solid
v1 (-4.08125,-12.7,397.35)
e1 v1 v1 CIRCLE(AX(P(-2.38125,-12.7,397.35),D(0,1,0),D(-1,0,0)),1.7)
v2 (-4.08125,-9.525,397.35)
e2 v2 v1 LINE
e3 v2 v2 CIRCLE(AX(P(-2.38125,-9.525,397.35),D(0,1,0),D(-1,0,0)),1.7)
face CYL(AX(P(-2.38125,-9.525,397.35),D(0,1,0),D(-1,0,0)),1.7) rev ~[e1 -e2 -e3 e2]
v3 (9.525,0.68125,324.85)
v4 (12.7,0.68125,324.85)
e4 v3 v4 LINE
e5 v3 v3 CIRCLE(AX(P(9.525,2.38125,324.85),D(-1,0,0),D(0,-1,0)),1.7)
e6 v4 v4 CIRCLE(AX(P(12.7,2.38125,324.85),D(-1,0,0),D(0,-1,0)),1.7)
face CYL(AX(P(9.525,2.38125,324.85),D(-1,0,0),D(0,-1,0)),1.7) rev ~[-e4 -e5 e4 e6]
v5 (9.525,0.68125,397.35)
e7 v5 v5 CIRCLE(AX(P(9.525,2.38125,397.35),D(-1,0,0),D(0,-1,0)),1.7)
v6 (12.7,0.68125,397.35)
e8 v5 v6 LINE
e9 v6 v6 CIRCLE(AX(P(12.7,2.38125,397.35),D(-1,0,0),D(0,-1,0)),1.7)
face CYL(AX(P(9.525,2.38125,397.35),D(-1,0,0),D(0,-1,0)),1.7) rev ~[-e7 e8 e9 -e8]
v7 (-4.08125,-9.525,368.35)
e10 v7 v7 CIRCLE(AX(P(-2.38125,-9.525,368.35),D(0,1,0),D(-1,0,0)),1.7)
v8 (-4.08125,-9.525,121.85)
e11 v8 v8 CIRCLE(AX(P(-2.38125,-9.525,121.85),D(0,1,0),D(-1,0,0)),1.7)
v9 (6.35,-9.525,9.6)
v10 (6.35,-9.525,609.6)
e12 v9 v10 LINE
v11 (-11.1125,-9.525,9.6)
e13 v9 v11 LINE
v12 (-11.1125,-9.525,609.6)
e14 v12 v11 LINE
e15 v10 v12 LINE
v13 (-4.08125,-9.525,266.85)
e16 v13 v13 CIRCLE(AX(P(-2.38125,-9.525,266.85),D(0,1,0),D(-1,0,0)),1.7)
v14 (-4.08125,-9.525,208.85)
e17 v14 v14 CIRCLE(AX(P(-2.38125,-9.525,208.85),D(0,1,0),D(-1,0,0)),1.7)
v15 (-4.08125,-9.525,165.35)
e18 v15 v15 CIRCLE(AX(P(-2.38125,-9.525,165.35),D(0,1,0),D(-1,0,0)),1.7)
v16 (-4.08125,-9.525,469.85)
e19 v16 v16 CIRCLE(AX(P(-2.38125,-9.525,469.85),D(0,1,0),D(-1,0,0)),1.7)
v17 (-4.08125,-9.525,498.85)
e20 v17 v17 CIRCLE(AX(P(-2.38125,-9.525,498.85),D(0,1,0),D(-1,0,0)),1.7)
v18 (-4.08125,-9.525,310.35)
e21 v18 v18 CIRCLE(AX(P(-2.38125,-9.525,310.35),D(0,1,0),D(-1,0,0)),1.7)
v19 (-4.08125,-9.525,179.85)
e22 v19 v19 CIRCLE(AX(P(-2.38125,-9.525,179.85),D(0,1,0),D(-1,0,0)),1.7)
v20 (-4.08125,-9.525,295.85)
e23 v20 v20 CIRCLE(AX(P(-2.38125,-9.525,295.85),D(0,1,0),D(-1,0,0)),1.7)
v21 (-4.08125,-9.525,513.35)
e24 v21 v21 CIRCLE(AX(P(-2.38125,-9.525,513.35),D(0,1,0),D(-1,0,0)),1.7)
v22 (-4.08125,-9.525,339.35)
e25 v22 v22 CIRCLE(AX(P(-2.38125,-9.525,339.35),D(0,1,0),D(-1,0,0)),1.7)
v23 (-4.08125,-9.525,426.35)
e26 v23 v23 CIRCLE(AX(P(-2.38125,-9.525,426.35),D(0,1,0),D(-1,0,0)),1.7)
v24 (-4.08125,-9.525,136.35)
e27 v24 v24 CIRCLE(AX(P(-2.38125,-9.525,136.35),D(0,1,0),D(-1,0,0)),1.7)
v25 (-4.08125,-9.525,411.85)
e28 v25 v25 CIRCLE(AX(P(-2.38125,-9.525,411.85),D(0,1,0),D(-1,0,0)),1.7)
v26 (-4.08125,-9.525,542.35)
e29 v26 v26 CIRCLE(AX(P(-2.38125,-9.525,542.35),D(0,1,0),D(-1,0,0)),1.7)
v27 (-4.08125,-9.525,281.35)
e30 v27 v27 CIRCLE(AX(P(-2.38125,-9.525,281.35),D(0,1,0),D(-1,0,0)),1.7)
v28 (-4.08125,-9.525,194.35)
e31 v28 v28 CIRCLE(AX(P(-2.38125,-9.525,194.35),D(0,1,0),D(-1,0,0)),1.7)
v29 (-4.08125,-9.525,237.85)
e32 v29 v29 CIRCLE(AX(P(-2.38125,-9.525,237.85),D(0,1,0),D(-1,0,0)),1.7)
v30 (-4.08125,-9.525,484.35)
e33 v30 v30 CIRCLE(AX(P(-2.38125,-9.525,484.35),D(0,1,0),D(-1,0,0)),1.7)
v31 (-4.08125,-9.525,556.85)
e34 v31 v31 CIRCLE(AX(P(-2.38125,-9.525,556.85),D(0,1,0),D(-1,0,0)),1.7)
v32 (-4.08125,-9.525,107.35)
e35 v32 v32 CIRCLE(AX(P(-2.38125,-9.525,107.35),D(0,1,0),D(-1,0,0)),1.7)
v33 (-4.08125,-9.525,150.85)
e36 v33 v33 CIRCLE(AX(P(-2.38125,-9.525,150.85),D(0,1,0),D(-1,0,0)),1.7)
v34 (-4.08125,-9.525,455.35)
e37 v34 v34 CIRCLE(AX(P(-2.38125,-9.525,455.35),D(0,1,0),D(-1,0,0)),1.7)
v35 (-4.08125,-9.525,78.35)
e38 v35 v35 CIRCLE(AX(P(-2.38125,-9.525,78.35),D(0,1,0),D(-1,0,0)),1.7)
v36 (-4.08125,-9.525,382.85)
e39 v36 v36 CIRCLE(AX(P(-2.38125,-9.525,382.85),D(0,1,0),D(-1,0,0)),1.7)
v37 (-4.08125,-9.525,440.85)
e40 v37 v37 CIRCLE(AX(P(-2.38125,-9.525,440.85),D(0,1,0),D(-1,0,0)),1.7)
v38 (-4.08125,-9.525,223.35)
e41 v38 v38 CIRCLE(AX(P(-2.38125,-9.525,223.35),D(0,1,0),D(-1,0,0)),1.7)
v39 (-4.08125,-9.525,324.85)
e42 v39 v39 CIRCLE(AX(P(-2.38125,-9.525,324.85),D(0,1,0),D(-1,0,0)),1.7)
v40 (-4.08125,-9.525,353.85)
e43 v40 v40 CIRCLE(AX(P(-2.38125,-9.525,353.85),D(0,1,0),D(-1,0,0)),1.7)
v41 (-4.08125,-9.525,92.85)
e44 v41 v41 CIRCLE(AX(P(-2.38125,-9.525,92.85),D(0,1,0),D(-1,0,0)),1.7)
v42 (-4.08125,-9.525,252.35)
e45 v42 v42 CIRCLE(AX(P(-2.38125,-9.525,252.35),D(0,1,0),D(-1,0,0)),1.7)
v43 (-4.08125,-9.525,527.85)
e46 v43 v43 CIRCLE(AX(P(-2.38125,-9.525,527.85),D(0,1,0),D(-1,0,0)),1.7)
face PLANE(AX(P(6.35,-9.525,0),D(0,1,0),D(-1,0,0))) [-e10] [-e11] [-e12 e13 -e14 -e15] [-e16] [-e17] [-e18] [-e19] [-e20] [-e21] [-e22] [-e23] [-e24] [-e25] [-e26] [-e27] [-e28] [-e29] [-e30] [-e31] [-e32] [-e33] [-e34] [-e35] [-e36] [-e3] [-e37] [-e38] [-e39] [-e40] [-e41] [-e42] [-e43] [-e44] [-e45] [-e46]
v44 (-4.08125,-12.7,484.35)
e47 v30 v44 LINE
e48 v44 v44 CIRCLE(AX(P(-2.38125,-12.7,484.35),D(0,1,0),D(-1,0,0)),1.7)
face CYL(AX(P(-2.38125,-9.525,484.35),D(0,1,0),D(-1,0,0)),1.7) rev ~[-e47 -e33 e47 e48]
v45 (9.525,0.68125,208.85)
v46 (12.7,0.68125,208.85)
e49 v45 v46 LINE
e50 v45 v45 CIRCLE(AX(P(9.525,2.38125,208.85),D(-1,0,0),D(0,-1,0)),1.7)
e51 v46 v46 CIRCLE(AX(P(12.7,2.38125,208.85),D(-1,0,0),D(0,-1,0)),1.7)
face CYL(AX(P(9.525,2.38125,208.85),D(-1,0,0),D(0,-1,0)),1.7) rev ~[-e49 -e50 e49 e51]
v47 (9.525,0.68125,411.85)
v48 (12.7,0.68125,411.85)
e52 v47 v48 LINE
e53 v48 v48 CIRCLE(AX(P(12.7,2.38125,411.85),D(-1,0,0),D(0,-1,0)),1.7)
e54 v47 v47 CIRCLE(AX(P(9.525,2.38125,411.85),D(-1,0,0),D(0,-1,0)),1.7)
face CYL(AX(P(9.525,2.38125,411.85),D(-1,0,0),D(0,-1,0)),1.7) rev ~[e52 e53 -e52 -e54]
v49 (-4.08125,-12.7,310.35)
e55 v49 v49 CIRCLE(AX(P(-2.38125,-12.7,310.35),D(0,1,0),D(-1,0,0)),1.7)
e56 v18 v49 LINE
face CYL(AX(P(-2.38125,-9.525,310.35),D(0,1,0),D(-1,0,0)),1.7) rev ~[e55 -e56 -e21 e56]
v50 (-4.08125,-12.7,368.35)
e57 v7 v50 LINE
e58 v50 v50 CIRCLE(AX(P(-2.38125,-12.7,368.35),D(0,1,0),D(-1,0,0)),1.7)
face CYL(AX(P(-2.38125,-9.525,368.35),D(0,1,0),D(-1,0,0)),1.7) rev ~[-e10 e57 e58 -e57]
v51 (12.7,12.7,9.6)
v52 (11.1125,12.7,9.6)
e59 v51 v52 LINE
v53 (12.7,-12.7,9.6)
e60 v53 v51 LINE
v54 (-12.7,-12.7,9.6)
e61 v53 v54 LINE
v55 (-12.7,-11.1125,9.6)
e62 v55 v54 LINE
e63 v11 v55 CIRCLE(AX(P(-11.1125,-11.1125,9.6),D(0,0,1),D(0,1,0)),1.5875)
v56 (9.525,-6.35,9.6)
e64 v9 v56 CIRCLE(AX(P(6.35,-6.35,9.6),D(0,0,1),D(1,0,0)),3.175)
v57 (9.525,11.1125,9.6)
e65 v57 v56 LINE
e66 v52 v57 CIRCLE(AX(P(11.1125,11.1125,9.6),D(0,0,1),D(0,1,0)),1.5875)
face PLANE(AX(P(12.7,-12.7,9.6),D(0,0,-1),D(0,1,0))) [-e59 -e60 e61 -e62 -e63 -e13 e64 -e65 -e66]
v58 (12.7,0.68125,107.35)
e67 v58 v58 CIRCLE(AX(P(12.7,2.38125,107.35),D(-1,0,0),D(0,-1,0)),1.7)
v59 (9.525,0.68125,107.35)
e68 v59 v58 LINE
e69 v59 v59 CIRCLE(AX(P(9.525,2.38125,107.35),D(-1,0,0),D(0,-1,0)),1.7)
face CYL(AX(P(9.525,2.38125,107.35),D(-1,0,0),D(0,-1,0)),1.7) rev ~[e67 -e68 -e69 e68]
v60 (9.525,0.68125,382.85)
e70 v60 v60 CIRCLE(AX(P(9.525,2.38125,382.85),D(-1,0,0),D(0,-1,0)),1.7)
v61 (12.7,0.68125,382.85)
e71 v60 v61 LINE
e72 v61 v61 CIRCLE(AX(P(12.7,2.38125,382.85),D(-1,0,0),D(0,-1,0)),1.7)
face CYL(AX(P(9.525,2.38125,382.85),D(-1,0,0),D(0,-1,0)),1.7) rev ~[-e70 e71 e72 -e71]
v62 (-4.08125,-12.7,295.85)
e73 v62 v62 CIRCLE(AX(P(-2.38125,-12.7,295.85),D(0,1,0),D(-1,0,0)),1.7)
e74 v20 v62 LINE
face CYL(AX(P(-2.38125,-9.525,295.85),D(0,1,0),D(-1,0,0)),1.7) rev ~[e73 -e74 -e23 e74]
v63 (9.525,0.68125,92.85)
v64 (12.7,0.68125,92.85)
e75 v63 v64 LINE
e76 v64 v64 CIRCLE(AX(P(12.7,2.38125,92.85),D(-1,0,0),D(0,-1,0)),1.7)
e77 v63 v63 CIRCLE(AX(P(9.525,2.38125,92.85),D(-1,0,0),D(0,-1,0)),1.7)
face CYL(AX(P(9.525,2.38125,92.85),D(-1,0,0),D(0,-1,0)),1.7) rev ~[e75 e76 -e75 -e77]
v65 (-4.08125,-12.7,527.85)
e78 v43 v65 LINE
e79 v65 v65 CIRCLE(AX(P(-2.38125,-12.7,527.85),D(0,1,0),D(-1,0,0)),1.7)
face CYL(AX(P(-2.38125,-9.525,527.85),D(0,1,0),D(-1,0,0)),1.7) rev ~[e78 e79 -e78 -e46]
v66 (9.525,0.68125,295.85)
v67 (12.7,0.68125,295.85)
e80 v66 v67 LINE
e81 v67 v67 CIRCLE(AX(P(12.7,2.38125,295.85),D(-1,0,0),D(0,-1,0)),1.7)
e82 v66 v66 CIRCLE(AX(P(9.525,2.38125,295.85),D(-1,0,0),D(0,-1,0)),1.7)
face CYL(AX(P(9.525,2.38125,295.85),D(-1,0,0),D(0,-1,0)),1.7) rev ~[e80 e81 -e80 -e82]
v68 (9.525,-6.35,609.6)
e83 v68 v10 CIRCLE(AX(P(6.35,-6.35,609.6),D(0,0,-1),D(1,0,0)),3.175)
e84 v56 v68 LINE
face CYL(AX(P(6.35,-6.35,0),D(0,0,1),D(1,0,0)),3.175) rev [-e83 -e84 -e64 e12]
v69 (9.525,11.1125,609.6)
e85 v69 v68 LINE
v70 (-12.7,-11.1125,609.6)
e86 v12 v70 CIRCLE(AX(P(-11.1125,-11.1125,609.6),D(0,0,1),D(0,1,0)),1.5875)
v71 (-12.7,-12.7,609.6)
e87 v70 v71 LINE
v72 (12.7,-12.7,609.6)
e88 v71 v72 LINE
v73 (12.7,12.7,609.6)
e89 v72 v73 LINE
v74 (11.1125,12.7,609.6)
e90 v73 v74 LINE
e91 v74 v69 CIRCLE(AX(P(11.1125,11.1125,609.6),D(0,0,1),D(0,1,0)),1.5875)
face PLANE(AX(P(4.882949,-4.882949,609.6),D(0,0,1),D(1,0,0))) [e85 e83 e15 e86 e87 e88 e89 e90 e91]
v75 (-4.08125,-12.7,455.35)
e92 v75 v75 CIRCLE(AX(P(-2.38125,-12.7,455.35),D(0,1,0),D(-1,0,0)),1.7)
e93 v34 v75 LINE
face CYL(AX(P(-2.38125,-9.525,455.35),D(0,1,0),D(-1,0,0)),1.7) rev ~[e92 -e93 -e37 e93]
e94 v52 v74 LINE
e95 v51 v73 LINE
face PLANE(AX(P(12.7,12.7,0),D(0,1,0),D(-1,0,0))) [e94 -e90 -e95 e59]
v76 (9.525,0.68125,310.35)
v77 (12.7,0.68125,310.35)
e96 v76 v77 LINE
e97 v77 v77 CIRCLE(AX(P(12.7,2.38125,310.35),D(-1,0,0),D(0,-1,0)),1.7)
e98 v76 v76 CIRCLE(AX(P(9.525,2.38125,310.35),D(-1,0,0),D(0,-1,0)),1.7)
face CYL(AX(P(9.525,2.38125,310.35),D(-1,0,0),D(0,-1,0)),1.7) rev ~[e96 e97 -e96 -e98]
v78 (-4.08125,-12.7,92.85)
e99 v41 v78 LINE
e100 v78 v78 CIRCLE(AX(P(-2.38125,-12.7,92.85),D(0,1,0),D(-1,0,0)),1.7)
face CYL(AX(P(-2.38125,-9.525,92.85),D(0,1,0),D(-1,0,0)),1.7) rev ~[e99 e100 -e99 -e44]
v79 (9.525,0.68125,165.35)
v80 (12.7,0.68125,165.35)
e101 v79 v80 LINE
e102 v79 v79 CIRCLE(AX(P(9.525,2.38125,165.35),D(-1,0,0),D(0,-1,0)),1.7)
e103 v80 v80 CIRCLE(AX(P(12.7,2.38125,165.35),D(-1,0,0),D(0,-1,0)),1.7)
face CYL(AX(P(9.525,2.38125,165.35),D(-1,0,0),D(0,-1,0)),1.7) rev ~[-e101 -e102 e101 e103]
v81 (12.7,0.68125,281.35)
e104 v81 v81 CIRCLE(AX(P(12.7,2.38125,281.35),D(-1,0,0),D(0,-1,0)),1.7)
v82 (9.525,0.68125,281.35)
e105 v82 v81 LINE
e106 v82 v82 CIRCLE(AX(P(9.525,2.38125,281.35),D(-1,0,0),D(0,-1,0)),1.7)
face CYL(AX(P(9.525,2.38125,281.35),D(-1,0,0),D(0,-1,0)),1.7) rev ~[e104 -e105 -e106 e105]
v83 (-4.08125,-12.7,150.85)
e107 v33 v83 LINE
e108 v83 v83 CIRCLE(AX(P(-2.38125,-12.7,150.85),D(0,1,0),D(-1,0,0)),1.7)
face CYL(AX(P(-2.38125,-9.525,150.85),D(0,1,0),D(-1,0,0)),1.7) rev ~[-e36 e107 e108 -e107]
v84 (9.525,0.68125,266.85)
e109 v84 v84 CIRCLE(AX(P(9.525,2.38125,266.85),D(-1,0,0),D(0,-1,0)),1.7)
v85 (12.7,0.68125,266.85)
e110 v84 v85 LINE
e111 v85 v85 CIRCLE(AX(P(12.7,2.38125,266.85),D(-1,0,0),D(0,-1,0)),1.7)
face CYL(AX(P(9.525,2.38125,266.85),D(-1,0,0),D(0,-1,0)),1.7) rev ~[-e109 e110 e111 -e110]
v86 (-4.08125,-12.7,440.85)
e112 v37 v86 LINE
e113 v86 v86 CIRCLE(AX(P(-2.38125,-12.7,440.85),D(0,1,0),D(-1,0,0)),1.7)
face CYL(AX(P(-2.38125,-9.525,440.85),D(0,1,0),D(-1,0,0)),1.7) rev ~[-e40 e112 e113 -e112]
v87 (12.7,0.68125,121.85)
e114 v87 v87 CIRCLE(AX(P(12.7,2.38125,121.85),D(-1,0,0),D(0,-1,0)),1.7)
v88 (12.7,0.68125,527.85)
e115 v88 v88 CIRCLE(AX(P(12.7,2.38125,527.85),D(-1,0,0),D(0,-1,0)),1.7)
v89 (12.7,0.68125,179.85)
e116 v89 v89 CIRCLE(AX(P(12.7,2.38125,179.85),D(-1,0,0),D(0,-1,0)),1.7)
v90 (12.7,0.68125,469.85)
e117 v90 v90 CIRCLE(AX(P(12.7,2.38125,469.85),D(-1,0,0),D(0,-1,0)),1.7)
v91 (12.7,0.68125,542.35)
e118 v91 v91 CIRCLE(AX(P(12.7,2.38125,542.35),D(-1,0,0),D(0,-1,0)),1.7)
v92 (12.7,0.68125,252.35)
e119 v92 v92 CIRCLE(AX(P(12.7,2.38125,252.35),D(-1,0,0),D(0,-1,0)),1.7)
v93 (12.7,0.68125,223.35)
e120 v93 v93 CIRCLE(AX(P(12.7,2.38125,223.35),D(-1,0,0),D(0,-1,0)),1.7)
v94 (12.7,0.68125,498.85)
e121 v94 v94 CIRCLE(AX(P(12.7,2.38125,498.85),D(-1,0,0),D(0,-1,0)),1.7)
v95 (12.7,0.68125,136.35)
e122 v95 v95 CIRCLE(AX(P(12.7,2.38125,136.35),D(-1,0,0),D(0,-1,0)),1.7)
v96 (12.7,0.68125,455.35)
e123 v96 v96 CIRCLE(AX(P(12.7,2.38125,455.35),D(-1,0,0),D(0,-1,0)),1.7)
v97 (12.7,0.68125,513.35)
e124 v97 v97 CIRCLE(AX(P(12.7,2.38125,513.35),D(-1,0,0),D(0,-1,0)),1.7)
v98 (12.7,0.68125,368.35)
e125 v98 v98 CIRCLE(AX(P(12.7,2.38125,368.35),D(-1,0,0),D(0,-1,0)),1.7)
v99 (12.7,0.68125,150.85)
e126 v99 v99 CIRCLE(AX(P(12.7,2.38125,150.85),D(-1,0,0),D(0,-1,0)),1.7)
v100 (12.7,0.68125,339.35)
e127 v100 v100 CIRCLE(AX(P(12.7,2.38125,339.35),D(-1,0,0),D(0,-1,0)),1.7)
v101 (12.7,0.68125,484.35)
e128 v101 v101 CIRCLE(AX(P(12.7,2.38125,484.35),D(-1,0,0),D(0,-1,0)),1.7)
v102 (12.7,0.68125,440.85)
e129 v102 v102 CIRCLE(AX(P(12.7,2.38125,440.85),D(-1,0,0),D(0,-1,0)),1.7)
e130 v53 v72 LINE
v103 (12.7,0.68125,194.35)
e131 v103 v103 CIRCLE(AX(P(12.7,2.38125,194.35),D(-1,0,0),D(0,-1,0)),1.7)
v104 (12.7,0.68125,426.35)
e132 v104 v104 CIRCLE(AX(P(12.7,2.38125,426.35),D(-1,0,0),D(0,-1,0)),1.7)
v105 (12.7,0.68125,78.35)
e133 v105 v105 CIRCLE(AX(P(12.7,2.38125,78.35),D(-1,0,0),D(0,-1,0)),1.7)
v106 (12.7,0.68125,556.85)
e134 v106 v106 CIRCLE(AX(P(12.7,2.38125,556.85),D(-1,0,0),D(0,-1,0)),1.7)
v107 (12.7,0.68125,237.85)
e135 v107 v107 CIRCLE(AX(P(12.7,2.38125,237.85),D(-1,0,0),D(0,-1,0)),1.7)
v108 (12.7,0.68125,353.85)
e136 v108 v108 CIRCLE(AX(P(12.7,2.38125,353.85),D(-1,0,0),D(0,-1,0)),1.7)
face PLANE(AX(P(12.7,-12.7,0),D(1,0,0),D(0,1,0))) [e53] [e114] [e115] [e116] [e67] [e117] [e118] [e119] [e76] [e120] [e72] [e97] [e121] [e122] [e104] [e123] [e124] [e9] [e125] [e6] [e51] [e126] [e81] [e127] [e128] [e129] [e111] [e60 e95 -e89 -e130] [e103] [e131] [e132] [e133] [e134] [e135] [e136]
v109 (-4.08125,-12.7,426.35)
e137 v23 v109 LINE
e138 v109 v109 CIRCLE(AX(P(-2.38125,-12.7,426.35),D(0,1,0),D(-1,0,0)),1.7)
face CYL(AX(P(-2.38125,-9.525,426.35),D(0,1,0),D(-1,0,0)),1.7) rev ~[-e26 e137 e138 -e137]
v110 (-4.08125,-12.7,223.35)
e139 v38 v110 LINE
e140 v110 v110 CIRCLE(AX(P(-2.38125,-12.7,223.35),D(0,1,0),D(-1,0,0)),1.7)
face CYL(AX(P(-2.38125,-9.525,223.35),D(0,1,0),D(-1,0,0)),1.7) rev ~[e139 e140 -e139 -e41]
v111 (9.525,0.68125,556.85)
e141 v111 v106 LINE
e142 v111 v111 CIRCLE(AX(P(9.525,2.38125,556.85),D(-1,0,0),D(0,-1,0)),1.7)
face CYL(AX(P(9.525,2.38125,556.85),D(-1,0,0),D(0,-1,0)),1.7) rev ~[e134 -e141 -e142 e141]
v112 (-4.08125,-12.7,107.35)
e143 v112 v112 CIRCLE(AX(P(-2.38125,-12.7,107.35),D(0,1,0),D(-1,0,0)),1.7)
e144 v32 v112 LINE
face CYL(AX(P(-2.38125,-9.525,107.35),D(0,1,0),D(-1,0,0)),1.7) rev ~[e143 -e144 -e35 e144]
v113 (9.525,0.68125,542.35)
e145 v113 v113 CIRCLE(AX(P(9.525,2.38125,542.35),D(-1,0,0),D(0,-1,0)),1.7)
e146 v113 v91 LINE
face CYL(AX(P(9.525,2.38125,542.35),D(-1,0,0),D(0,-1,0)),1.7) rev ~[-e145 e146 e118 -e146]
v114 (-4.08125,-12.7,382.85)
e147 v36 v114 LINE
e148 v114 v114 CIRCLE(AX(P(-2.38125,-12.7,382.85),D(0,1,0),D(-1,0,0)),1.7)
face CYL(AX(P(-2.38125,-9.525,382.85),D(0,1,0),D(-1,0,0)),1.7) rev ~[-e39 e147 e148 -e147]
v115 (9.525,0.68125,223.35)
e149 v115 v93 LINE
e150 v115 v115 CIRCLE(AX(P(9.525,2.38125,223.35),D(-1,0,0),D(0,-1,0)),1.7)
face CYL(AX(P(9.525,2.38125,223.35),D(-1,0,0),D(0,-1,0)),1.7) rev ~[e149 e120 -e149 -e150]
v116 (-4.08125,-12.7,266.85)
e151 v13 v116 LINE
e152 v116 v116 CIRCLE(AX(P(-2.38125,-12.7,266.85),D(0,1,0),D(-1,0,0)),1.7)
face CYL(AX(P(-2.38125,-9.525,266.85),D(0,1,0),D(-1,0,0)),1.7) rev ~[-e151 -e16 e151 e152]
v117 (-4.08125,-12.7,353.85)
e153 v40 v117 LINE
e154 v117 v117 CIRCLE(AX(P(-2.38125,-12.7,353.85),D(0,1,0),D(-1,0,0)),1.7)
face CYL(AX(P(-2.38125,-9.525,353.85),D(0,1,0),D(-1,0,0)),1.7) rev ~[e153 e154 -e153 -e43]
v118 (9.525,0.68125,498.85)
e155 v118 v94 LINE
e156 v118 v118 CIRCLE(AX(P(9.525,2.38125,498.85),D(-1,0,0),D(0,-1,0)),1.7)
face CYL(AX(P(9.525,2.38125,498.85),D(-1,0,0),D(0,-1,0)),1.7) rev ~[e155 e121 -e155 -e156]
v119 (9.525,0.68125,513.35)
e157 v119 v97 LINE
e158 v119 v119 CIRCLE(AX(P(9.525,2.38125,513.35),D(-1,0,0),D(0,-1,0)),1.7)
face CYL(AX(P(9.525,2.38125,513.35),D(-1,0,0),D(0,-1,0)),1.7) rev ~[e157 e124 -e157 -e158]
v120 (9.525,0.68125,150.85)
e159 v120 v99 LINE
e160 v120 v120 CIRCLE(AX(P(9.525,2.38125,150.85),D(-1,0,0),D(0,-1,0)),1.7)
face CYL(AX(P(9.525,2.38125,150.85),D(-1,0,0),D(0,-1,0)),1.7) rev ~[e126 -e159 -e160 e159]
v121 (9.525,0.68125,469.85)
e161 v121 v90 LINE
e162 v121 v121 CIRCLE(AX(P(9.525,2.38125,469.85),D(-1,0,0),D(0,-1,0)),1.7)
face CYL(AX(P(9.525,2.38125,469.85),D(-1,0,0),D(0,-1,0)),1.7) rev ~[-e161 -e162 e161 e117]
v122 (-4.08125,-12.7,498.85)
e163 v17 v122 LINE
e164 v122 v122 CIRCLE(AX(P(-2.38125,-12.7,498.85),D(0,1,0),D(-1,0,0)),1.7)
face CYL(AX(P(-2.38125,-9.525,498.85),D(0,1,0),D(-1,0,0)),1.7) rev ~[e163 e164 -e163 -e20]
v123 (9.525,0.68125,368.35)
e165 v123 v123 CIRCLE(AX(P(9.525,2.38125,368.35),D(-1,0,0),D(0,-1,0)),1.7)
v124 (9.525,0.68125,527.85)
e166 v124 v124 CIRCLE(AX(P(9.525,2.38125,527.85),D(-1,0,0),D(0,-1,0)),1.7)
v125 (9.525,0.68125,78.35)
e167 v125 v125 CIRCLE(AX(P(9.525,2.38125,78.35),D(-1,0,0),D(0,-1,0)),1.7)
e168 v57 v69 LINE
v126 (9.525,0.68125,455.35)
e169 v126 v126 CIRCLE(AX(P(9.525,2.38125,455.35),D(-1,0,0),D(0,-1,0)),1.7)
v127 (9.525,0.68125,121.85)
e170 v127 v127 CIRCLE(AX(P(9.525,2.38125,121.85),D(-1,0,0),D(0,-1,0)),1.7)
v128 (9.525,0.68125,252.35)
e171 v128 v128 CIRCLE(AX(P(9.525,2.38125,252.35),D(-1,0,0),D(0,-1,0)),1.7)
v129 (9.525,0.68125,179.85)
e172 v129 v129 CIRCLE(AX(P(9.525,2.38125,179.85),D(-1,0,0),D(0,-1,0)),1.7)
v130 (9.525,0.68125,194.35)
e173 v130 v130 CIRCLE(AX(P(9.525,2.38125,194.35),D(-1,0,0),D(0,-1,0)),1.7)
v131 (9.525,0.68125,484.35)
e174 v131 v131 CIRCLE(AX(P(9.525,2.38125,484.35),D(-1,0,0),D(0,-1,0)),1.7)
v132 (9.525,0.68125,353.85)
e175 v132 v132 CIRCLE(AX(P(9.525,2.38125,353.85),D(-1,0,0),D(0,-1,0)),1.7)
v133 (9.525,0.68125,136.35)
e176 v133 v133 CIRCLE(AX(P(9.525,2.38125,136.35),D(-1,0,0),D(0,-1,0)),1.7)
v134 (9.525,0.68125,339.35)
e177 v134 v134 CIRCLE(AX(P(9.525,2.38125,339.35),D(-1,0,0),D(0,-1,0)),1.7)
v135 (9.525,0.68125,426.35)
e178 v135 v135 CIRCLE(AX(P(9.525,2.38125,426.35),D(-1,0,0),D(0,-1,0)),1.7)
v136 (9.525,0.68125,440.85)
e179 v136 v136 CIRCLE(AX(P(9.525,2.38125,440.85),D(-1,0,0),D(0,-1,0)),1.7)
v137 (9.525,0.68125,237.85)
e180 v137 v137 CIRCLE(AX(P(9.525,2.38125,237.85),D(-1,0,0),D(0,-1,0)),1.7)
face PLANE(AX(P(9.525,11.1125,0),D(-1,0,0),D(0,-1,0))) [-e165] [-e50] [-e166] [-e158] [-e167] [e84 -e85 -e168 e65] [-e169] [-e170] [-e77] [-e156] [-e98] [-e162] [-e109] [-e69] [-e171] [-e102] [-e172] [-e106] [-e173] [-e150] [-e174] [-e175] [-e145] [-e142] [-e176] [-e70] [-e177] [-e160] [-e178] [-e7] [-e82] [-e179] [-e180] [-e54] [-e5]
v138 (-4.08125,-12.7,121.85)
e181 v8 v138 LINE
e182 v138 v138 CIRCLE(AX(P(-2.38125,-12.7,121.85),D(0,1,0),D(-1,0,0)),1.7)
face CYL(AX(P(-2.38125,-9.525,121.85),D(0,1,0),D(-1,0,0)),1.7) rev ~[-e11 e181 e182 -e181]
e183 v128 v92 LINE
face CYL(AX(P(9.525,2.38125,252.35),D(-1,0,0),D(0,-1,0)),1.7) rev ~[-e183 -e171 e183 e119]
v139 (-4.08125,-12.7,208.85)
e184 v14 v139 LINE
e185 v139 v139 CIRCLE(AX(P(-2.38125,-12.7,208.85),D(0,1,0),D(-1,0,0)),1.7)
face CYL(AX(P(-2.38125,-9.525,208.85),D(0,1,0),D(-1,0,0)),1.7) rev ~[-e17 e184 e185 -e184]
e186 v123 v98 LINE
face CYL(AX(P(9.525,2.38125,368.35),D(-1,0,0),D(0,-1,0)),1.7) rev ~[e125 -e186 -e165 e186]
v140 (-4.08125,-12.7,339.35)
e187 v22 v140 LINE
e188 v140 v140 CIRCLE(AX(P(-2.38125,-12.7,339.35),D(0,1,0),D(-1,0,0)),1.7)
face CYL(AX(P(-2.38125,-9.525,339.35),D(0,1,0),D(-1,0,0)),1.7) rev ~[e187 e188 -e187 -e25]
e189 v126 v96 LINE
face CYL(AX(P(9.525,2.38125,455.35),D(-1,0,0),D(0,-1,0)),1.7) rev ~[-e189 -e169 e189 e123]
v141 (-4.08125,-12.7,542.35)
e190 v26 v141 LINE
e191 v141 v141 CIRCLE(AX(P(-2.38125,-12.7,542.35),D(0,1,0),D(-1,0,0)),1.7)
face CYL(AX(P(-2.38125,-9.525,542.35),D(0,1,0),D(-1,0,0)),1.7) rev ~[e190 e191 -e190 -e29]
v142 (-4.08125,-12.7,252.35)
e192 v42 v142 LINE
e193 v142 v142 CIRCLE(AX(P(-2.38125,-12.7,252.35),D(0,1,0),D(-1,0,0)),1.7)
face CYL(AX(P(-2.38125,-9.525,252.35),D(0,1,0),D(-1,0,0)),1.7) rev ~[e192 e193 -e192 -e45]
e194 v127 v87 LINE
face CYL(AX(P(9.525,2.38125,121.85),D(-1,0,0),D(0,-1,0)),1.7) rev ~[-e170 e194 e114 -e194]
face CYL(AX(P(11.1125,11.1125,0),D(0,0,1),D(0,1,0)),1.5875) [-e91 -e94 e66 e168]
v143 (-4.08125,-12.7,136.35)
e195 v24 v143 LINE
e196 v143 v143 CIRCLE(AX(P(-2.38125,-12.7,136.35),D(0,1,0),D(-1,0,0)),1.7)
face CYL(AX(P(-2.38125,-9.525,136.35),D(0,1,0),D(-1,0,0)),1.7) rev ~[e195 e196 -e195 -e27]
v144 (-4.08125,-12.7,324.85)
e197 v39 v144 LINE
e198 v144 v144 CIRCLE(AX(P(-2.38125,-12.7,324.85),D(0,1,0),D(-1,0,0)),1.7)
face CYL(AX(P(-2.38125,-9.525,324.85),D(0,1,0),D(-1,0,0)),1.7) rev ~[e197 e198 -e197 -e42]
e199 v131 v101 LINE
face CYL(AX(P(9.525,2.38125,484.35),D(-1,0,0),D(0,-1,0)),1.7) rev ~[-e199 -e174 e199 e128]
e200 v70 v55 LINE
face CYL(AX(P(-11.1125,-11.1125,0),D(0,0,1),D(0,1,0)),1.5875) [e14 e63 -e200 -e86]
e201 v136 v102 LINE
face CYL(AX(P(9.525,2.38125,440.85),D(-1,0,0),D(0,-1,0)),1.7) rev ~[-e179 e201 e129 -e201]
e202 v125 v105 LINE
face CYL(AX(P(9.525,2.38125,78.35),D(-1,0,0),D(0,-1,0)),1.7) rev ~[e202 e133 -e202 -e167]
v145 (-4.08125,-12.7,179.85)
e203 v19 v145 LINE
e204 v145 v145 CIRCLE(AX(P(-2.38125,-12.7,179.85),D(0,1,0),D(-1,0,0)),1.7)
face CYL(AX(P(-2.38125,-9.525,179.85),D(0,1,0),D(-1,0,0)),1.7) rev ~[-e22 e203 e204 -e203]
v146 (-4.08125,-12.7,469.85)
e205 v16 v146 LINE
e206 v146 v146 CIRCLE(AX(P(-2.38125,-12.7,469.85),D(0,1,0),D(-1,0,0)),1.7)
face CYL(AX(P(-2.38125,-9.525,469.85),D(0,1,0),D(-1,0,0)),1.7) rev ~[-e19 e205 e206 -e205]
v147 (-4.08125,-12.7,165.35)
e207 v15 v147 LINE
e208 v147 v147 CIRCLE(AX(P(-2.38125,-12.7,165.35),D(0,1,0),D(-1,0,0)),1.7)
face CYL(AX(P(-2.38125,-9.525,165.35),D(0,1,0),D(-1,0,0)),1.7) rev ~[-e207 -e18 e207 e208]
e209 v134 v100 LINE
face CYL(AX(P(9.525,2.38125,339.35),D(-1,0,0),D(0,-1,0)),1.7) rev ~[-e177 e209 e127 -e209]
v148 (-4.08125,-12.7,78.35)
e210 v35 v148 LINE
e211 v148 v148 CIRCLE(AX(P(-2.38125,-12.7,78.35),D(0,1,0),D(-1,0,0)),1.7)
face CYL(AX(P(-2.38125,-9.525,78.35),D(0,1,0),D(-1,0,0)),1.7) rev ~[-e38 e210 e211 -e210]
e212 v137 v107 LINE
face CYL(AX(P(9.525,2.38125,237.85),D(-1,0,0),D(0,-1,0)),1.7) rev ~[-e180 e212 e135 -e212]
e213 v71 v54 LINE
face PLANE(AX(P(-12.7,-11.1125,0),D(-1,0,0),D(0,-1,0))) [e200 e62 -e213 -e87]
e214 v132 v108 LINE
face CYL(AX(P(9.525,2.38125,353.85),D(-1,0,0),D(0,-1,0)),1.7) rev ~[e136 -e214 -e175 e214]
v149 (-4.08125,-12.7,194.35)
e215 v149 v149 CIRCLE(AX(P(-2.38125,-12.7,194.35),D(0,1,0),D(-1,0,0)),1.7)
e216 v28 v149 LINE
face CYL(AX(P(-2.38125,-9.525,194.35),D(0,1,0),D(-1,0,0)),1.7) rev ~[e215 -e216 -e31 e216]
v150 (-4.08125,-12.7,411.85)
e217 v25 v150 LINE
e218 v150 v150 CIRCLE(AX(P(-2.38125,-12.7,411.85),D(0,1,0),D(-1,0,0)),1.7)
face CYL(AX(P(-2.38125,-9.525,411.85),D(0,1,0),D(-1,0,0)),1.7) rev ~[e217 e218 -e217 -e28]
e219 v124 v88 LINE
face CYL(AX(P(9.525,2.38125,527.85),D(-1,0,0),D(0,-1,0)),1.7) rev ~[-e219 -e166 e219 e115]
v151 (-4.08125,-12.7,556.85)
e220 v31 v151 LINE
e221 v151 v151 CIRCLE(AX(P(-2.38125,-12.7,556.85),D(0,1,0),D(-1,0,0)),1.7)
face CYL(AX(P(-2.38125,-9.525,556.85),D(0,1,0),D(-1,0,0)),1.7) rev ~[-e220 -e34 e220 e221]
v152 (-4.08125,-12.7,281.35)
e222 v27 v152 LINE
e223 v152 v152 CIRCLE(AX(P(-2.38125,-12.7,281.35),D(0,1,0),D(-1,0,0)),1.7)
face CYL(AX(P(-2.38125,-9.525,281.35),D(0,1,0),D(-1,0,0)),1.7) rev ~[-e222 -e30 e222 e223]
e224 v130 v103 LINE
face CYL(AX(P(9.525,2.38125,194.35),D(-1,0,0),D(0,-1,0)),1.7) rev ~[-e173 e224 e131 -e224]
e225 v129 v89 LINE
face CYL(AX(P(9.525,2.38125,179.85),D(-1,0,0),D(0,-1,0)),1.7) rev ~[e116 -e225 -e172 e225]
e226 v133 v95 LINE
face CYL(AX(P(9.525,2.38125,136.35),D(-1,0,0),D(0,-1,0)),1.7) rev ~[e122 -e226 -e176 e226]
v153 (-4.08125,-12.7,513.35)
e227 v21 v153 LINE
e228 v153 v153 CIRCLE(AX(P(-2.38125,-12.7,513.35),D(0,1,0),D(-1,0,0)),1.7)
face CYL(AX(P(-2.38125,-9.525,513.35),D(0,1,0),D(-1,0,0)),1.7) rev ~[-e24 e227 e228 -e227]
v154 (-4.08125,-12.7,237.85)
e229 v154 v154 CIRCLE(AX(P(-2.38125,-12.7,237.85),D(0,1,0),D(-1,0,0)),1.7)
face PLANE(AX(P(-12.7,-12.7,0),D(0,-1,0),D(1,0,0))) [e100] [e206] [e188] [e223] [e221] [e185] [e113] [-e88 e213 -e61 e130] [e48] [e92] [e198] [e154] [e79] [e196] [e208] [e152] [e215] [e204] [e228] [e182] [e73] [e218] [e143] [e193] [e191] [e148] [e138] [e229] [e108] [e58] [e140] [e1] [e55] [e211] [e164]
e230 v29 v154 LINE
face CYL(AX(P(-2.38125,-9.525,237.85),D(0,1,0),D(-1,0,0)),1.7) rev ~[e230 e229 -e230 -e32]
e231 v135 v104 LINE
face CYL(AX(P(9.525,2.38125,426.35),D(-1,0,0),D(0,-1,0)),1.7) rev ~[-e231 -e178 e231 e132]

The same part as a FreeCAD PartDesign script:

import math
import FreeCAD as App
import Part
import Sketcher
from FreeCAD import Vector
Q = App.Units.Quantity


def add_polygon(sketch, points):
    """Adds a closed chain of lines whose ends are joined by coincident constraints."""
    first, n = sketch.GeometryCount, len(points)
    for a, b in zip(points, points[1:] + points[:1]):
        sketch.addGeometry(Part.LineSegment(App.Vector(*a, 0), App.Vector(*b, 0)), False)
    for i in range(n):
        sketch.addConstraint(Sketcher.Constraint("Coincident", first + i, 2, first + (i + 1) % n, 1))

doc = App.newDocument("Part")
params = doc.addObject("Spreadsheet::Sheet", "Params")
for row, (alias, value) in enumerate([
    ("sketch1_width", "1 in"),
    ("sketch1_radius", "0.0625 in"),
    ("sketch1_radius2", "0.125 in"),
    ("pad1_length", "48 in"),
    ("sketch2_width", "1 in"),
    ("pocket1_length", "1.2 in"),
], start=1):
    params.set(f"A{row}", alias)
    params.set(f"B{row}", "=" + value)
    params.setAlias(f"B{row}", alias)

body = doc.addObject("PartDesign::Body", "Body")

sketch1 = body.newObject("Sketcher::SketchObject", "Sketch")
sketch1.AttachmentSupport = (doc.getObject("XY_Plane"), [""])
sketch1.MapMode = "FlatFace"
sketch1.addGeometry([
    Part.LineSegment(Vector(-12.7, -12.7, 0), Vector(12.7, -12.7, 0)),
    Part.LineSegment(Vector(12.7, -12.7, 0), Vector(12.7, 12.7, 0)),
    Part.LineSegment(Vector(12.7, 12.7, 0), Vector(11.1, 12.7, 0)),
    Part.ArcOfCircle(Part.Circle(Vector(11.1, 11.1, 0), Vector(0, 0, 1), 1.6), math.radians(90), math.radians(180)),
    Part.LineSegment(Vector(9.5, 11.1, 0), Vector(9.5, -6.3, 0)),
    Part.ArcOfCircle(Part.Circle(Vector(6.3, -6.3, 0), Vector(0, 0, 1), 3.2), math.radians(-90), math.radians(0)),
    Part.LineSegment(Vector(6.3, -9.5, 0), Vector(-11.1, -9.5, 0)),
    Part.ArcOfCircle(Part.Circle(Vector(-11.1, -11.1, 0), Vector(0, 0, 1), 1.6), math.radians(90), math.radians(180)),
    Part.LineSegment(Vector(-12.7, -11.1, 0), Vector(-12.7, -12.7, 0)),
], False)
sketch1.addConstraint([
    Sketcher.Constraint("Coincident", 0, 2, 1, 1),
    Sketcher.Constraint("Coincident", 1, 2, 2, 1),
    Sketcher.Constraint("Tangent", 2, 2, 3, 1),
    Sketcher.Constraint("Tangent", 3, 2, 4, 1),
    Sketcher.Constraint("Tangent", 4, 2, 5, 2),
    Sketcher.Constraint("Tangent", 5, 1, 6, 1),
    Sketcher.Constraint("Tangent", 6, 2, 7, 1),
    Sketcher.Constraint("Tangent", 7, 2, 8, 1),
    Sketcher.Constraint("Coincident", 8, 2, 0, 1),
    Sketcher.Constraint("Horizontal", 0),
    Sketcher.Constraint("Vertical", 1),
    Sketcher.Constraint("Horizontal", 2),
    Sketcher.Constraint("Vertical", 4),
    Sketcher.Constraint("Horizontal", 6),
    Sketcher.Constraint("Vertical", 8),
    Sketcher.Constraint("Equal", 3, 7),
    Sketcher.Constraint("Symmetric", 3, 3, 7, 3, -1, 1),
    Sketcher.Constraint("Symmetric", 1, 2, 8, 2, -1, 1),
    Sketcher.Constraint("Equal", 0, 1),
    Sketcher.Constraint("DistanceX", 0, 1, 0, 2, Q("1 in")),
    Sketcher.Constraint("Radius", 3, Q("0.0625 in")),
    Sketcher.Constraint("Radius", 5, Q("0.125 in")),
])
sketch1.setExpression("Constraints[19]", "Params.sketch1_width")
sketch1.setExpression("Constraints[20]", "Params.sketch1_radius")
sketch1.setExpression("Constraints[21]", "Params.sketch1_radius2")
pad1 = body.newObject("PartDesign::Pad", "Pad")
pad1.Profile = sketch1
pad1.setExpression("Length", "Params.pad1_length")
pad1.Midplane = True

sketch2 = body.newObject("Sketcher::SketchObject", "Sketch001")
sketch2.AttachmentSupport = (doc.getObject("YZ_Plane"), [""])
sketch2.MapMode = "FlatFace"
sketch2.AttachmentOffset = App.Placement(Vector(0, 0, 0.5 * 25.4), App.Rotation())
add_polygon(sketch2, [(13, 10), (-13, 10), (-13, -610), (13, -610)])
sketch2.addConstraint([
    Sketcher.Constraint("Horizontal", 0),
    Sketcher.Constraint("Vertical", 1),
    Sketcher.Constraint("Horizontal", 2),
    Sketcher.Constraint("Vertical", 3),
    Sketcher.Constraint("DistanceX", 0, 2, 0, 1, Q("1 in")),
    Sketcher.Constraint("DistanceY", 1, 2, -1, 1, Q("24 in")),
    Sketcher.Constraint("DistanceX", 0, 2, -1, 1, Q("0.5 in")),
    Sketcher.Constraint("DistanceY", 1, 2, 1, 1, Q("619.2 mm")),
])
sketch2.setExpression("Constraints[8]", "Params.sketch2_width")
pocket1 = body.newObject("PartDesign::Pocket", "Pocket")
pocket1.Profile = sketch2
pocket1.setExpression("Length", "Params.pocket1_length")

sketch3 = body.newObject("Sketcher::SketchObject", "Sketch002")
sketch3.AttachmentSupport = (doc.getObject("YZ_Plane"), [""])
sketch3.MapMode = "FlatFace"
sketch3.AttachmentOffset = App.Placement(Vector(0, 0, 0.375 * 25.4), App.Rotation())
sketch3.addGeometry([
    Part.Circle(Vector(2.4, 78.3, 0), Vector(0, 0, 1), 1.7),
    Part.Circle(Vector(2.4, 92.8, 0), Vector(0, 0, 1), 1.7),
    Part.Circle(Vector(2.4, 107.3, 0), Vector(0, 0, 1), 1.7),
    Part.Circle(Vector(2.4, 121.8, 0), Vector(0, 0, 1), 1.7),
    Part.Circle(Vector(2.4, 136.3, 0), Vector(0, 0, 1), 1.7),
    Part.Circle(Vector(2.4, 150.8, 0), Vector(0, 0, 1), 1.7),
    Part.Circle(Vector(2.4, 165.3, 0), Vector(0, 0, 1), 1.7),
    Part.Circle(Vector(2.4, 179.8, 0), Vector(0, 0, 1), 1.7),
    Part.Circle(Vector(2.4, 194.3, 0), Vector(0, 0, 1), 1.7),
    Part.Circle(Vector(2.4, 208.8, 0), Vector(0, 0, 1), 1.7),
    Part.Circle(Vector(2.4, 223.3, 0), Vector(0, 0, 1), 1.7),
    Part.Circle(Vector(2.4, 237.8, 0), Vector(0, 0, 1), 1.7),
    Part.Circle(Vector(2.4, 252.3, 0), Vector(0, 0, 1), 1.7),
    Part.Circle(Vector(2.4, 266.9, 0), Vector(0, 0, 1), 1.7),
    Part.Circle(Vector(2.4, 281.4, 0), Vector(0, 0, 1), 1.7),
    Part.Circle(Vector(2.4, 295.9, 0), Vector(0, 0, 1), 1.7),
    Part.Circle(Vector(2.4, 310.4, 0), Vector(0, 0, 1), 1.7),
    Part.Circle(Vector(2.4, 324.9, 0), Vector(0, 0, 1), 1.7),
    Part.Circle(Vector(2.4, 339.4, 0), Vector(0, 0, 1), 1.7),
    Part.Circle(Vector(2.4, 353.9, 0), Vector(0, 0, 1), 1.7),
    Part.Circle(Vector(2.4, 368.4, 0), Vector(0, 0, 1), 1.7),
    Part.Circle(Vector(2.4, 382.9, 0), Vector(0, 0, 1), 1.7),
    Part.Circle(Vector(2.4, 397.4, 0), Vector(0, 0, 1), 1.7),
    Part.Circle(Vector(2.4, 411.9, 0), Vector(0, 0, 1), 1.7),
    Part.Circle(Vector(2.4, 426.4, 0), Vector(0, 0, 1), 1.7),
    Part.Circle(Vector(2.4, 440.9, 0), Vector(0, 0, 1), 1.7),
    Part.Circle(Vector(2.4, 455.4, 0), Vector(0, 0, 1), 1.7),
    Part.Circle(Vector(2.4, 469.9, 0), Vector(0, 0, 1), 1.7),
    Part.Circle(Vector(2.4, 484.4, 0), Vector(0, 0, 1), 1.7),
    Part.Circle(Vector(2.4, 498.9, 0), Vector(0, 0, 1), 1.7),
    Part.Circle(Vector(2.4, 513.4, 0), Vector(0, 0, 1), 1.7),
    Part.Circle(Vector(2.4, 527.9, 0), Vector(0, 0, 1), 1.7),
    Part.Circle(Vector(2.4, 542.4, 0), Vector(0, 0, 1), 1.7),
    Part.Circle(Vector(2.4, 556.9, 0), Vector(0, 0, 1), 1.7),
], False)
sketch3.addConstraint([
    Sketcher.Constraint("Equal", 0, 1),
    Sketcher.Constraint("Equal", 1, 2),
    Sketcher.Constraint("Equal", 2, 3),
    Sketcher.Constraint("Equal", 3, 4),
    Sketcher.Constraint("Equal", 4, 5),
    Sketcher.Constraint("Equal", 5, 6),
    Sketcher.Constraint("Equal", 6, 7),
    Sketcher.Constraint("Equal", 7, 8),
    Sketcher.Constraint("Equal", 8, 9),
    Sketcher.Constraint("Equal", 9, 10),
    Sketcher.Constraint("Equal", 10, 11),
    Sketcher.Constraint("Equal", 11, 12),
    Sketcher.Constraint("Equal", 12, 13),
    Sketcher.Constraint("Equal", 13, 14),
    Sketcher.Constraint("Equal", 14, 15),
    Sketcher.Constraint("Equal", 15, 16),
    Sketcher.Constraint("Equal", 16, 17),
    Sketcher.Constraint("Equal", 17, 18),
    Sketcher.Constraint("Equal", 18, 19),
    Sketcher.Constraint("Equal", 19, 20),
    Sketcher.Constraint("Equal", 20, 21),
    Sketcher.Constraint("Equal", 21, 22),
    Sketcher.Constraint("Equal", 22, 23),
    Sketcher.Constraint("Equal", 23, 24),
    Sketcher.Constraint("Equal", 24, 25),
    Sketcher.Constraint("Equal", 25, 26),
    Sketcher.Constraint("Equal", 26, 27),
    Sketcher.Constraint("Equal", 27, 28),
    Sketcher.Constraint("Equal", 28, 29),
    Sketcher.Constraint("Equal", 29, 30),
    Sketcher.Constraint("Equal", 30, 31),
    Sketcher.Constraint("Equal", 31, 32),
    Sketcher.Constraint("Equal", 32, 33),
    Sketcher.Constraint("Vertical", 0, 3, 1, 3),
    Sketcher.Constraint("Vertical", 1, 3, 2, 3),
    Sketcher.Constraint("Vertical", 2, 3, 3, 3),
    Sketcher.Constraint("Vertical", 3, 3, 4, 3),
    Sketcher.Constraint("Vertical", 4, 3, 5, 3),
    Sketcher.Constraint("Vertical", 5, 3, 6, 3),
    Sketcher.Constraint("Vertical", 6, 3, 7, 3),
    Sketcher.Constraint("Vertical", 7, 3, 8, 3),
    Sketcher.Constraint("Vertical", 8, 3, 9, 3),
    Sketcher.Constraint("Vertical", 9, 3, 10, 3),
    Sketcher.Constraint("Vertical", 10, 3, 11, 3),
    Sketcher.Constraint("Vertical", 11, 3, 12, 3),
    Sketcher.Constraint("Vertical", 12, 3, 13, 3),
    Sketcher.Constraint("Vertical", 13, 3, 14, 3),
    Sketcher.Constraint("Vertical", 14, 3, 15, 3),
    Sketcher.Constraint("Vertical", 15, 3, 16, 3),
    Sketcher.Constraint("Vertical", 16, 3, 17, 3),
    Sketcher.Constraint("Vertical", 17, 3, 18, 3),
    Sketcher.Constraint("Vertical", 18, 3, 19, 3),
    Sketcher.Constraint("Vertical", 19, 3, 20, 3),
    Sketcher.Constraint("Vertical", 20, 3, 21, 3),
    Sketcher.Constraint("Vertical", 21, 3, 22, 3),
    Sketcher.Constraint("Vertical", 22, 3, 23, 3),
    Sketcher.Constraint("Vertical", 23, 3, 24, 3),
    Sketcher.Constraint("Vertical", 24, 3, 25, 3),
    Sketcher.Constraint("Vertical", 25, 3, 26, 3),
    Sketcher.Constraint("Vertical", 26, 3, 27, 3),
    Sketcher.Constraint("Vertical", 27, 3, 28, 3),
    Sketcher.Constraint("Vertical", 28, 3, 29, 3),
    Sketcher.Constraint("Vertical", 29, 3, 30, 3),
    Sketcher.Constraint("Vertical", 30, 3, 31, 3),
    Sketcher.Constraint("Vertical", 31, 3, 32, 3),
    Sketcher.Constraint("Vertical", 32, 3, 33, 3),
    Sketcher.Constraint("Diameter", 0, Q("3.4 mm")),
    Sketcher.Constraint("DistanceX", -1, 1, 0, 3, Q("0.09375 in")),
    Sketcher.Constraint("DistanceY", -1, 1, 0, 3, Q("78.35 mm")),
    Sketcher.Constraint("DistanceY", -1, 1, 1, 3, Q("92.85 mm")),
    Sketcher.Constraint("DistanceY", -1, 1, 2, 3, Q("107.35 mm")),
    Sketcher.Constraint("DistanceY", -1, 1, 3, 3, Q("121.85 mm")),
    Sketcher.Constraint("DistanceY", -1, 1, 4, 3, Q("136.35 mm")),
    Sketcher.Constraint("DistanceY", -1, 1, 5, 3, Q("150.85 mm")),
    Sketcher.Constraint("DistanceY", -1, 1, 6, 3, Q("165.35 mm")),
    Sketcher.Constraint("DistanceY", -1, 1, 7, 3, Q("179.85 mm")),
    Sketcher.Constraint("DistanceY", -1, 1, 8, 3, Q("194.35 mm")),
    Sketcher.Constraint("DistanceY", -1, 1, 9, 3, Q("208.85 mm")),
    Sketcher.Constraint("DistanceY", -1, 1, 10, 3, Q("223.35 mm")),
    Sketcher.Constraint("DistanceY", -1, 1, 11, 3, Q("237.85 mm")),
    Sketcher.Constraint("DistanceY", -1, 1, 12, 3, Q("252.35 mm")),
    Sketcher.Constraint("DistanceY", -1, 1, 13, 3, Q("266.85 mm")),
    Sketcher.Constraint("DistanceY", -1, 1, 14, 3, Q("281.35 mm")),
    Sketcher.Constraint("DistanceY", -1, 1, 15, 3, Q("295.85 mm")),
    Sketcher.Constraint("DistanceY", -1, 1, 16, 3, Q("310.35 mm")),
    Sketcher.Constraint("DistanceY", -1, 1, 17, 3, Q("324.85 mm")),
    Sketcher.Constraint("DistanceY", -1, 1, 18, 3, Q("339.35 mm")),
    Sketcher.Constraint("DistanceY", -1, 1, 19, 3, Q("353.85 mm")),
    Sketcher.Constraint("DistanceY", -1, 1, 20, 3, Q("368.35 mm")),
    Sketcher.Constraint("DistanceY", -1, 1, 21, 3, Q("382.85 mm")),
    Sketcher.Constraint("DistanceY", -1, 1, 22, 3, Q("397.35 mm")),
    Sketcher.Constraint("DistanceY", -1, 1, 23, 3, Q("411.85 mm")),
    Sketcher.Constraint("DistanceY", -1, 1, 24, 3, Q("426.35 mm")),
    Sketcher.Constraint("DistanceY", -1, 1, 25, 3, Q("440.85 mm")),
    Sketcher.Constraint("DistanceY", -1, 1, 26, 3, Q("455.35 mm")),
    Sketcher.Constraint("DistanceY", -1, 1, 27, 3, Q("469.85 mm")),
    Sketcher.Constraint("DistanceY", -1, 1, 28, 3, Q("484.35 mm")),
    Sketcher.Constraint("DistanceY", -1, 1, 29, 3, Q("498.85 mm")),
    Sketcher.Constraint("DistanceY", -1, 1, 30, 3, Q("513.35 mm")),
    Sketcher.Constraint("DistanceY", -1, 1, 31, 3, Q("527.85 mm")),
    Sketcher.Constraint("DistanceY", -1, 1, 32, 3, Q("542.35 mm")),
    Sketcher.Constraint("DistanceY", -1, 1, 33, 3, Q("556.85 mm")),
])
pocket2 = body.newObject("PartDesign::Pocket", "Pocket001")
pocket2.Profile = sketch3
pocket2.Type = "ThroughAll"
pocket2.Reversed = True

sketch4 = body.newObject("Sketcher::SketchObject", "Sketch003")
sketch4.AttachmentSupport = (doc.getObject("XZ_Plane"), [""])
sketch4.MapMode = "FlatFace"
sketch4.AttachmentOffset = App.Placement(Vector(0, 0, 0.375 * 25.4), App.Rotation())
sketch4.addGeometry([
    Part.Circle(Vector(-2.4, 78.3, 0), Vector(0, 0, 1), 1.7),
    Part.Circle(Vector(-2.4, 92.8, 0), Vector(0, 0, 1), 1.7),
    Part.Circle(Vector(-2.4, 107.3, 0), Vector(0, 0, 1), 1.7),
    Part.Circle(Vector(-2.4, 121.8, 0), Vector(0, 0, 1), 1.7),
    Part.Circle(Vector(-2.4, 136.3, 0), Vector(0, 0, 1), 1.7),
    Part.Circle(Vector(-2.4, 150.8, 0), Vector(0, 0, 1), 1.7),
    Part.Circle(Vector(-2.4, 165.3, 0), Vector(0, 0, 1), 1.7),
    Part.Circle(Vector(-2.4, 179.8, 0), Vector(0, 0, 1), 1.7),
    Part.Circle(Vector(-2.4, 194.3, 0), Vector(0, 0, 1), 1.7),
    Part.Circle(Vector(-2.4, 208.8, 0), Vector(0, 0, 1), 1.7),
    Part.Circle(Vector(-2.4, 223.3, 0), Vector(0, 0, 1), 1.7),
    Part.Circle(Vector(-2.4, 237.8, 0), Vector(0, 0, 1), 1.7),
    Part.Circle(Vector(-2.4, 252.3, 0), Vector(0, 0, 1), 1.7),
    Part.Circle(Vector(-2.4, 266.9, 0), Vector(0, 0, 1), 1.7),
    Part.Circle(Vector(-2.4, 281.4, 0), Vector(0, 0, 1), 1.7),
    Part.Circle(Vector(-2.4, 295.9, 0), Vector(0, 0, 1), 1.7),
    Part.Circle(Vector(-2.4, 310.4, 0), Vector(0, 0, 1), 1.7),
    Part.Circle(Vector(-2.4, 324.9, 0), Vector(0, 0, 1), 1.7),
    Part.Circle(Vector(-2.4, 339.4, 0), Vector(0, 0, 1), 1.7),
    Part.Circle(Vector(-2.4, 353.9, 0), Vector(0, 0, 1), 1.7),
    Part.Circle(Vector(-2.4, 368.4, 0), Vector(0, 0, 1), 1.7),
    Part.Circle(Vector(-2.4, 382.9, 0), Vector(0, 0, 1), 1.7),
    Part.Circle(Vector(-2.4, 397.4, 0), Vector(0, 0, 1), 1.7),
    Part.Circle(Vector(-2.4, 411.9, 0), Vector(0, 0, 1), 1.7),
    Part.Circle(Vector(-2.4, 426.4, 0), Vector(0, 0, 1), 1.7),
    Part.Circle(Vector(-2.4, 440.9, 0), Vector(0, 0, 1), 1.7),
    Part.Circle(Vector(-2.4, 455.4, 0), Vector(0, 0, 1), 1.7),
    Part.Circle(Vector(-2.4, 469.9, 0), Vector(0, 0, 1), 1.7),
    Part.Circle(Vector(-2.4, 484.4, 0), Vector(0, 0, 1), 1.7),
    Part.Circle(Vector(-2.4, 498.9, 0), Vector(0, 0, 1), 1.7),
    Part.Circle(Vector(-2.4, 513.4, 0), Vector(0, 0, 1), 1.7),
    Part.Circle(Vector(-2.4, 527.9, 0), Vector(0, 0, 1), 1.7),
    Part.Circle(Vector(-2.4, 542.4, 0), Vector(0, 0, 1), 1.7),
    Part.Circle(Vector(-2.4, 556.9, 0), Vector(0, 0, 1), 1.7),
], False)
sketch4.addConstraint([
    Sketcher.Constraint("Equal", 0, 1),
    Sketcher.Constraint("Equal", 1, 2),
    Sketcher.Constraint("Equal", 2, 3),
    Sketcher.Constraint("Equal", 3, 4),
    Sketcher.Constraint("Equal", 4, 5),
    Sketcher.Constraint("Equal", 5, 6),
    Sketcher.Constraint("Equal", 6, 7),
    Sketcher.Constraint("Equal", 7, 8),
    Sketcher.Constraint("Equal", 8, 9),
    Sketcher.Constraint("Equal", 9, 10),
    Sketcher.Constraint("Equal", 10, 11),
    Sketcher.Constraint("Equal", 11, 12),
    Sketcher.Constraint("Equal", 12, 13),
    Sketcher.Constraint("Equal", 13, 14),
    Sketcher.Constraint("Equal", 14, 15),
    Sketcher.Constraint("Equal", 15, 16),
    Sketcher.Constraint("Equal", 16, 17),
    Sketcher.Constraint("Equal", 17, 18),
    Sketcher.Constraint("Equal", 18, 19),
    Sketcher.Constraint("Equal", 19, 20),
    Sketcher.Constraint("Equal", 20, 21),
    Sketcher.Constraint("Equal", 21, 22),
    Sketcher.Constraint("Equal", 22, 23),
    Sketcher.Constraint("Equal", 23, 24),
    Sketcher.Constraint("Equal", 24, 25),
    Sketcher.Constraint("Equal", 25, 26),
    Sketcher.Constraint("Equal", 26, 27),
    Sketcher.Constraint("Equal", 27, 28),
    Sketcher.Constraint("Equal", 28, 29),
    Sketcher.Constraint("Equal", 29, 30),
    Sketcher.Constraint("Equal", 30, 31),
    Sketcher.Constraint("Equal", 31, 32),
    Sketcher.Constraint("Equal", 32, 33),
    Sketcher.Constraint("Vertical", 0, 3, 1, 3),
    Sketcher.Constraint("Vertical", 1, 3, 2, 3),
    Sketcher.Constraint("Vertical", 2, 3, 3, 3),
    Sketcher.Constraint("Vertical", 3, 3, 4, 3),
    Sketcher.Constraint("Vertical", 4, 3, 5, 3),
    Sketcher.Constraint("Vertical", 5, 3, 6, 3),
    Sketcher.Constraint("Vertical", 6, 3, 7, 3),
    Sketcher.Constraint("Vertical", 7, 3, 8, 3),
    Sketcher.Constraint("Vertical", 8, 3, 9, 3),
    Sketcher.Constraint("Vertical", 9, 3, 10, 3),
    Sketcher.Constraint("Vertical", 10, 3, 11, 3),
    Sketcher.Constraint("Vertical", 11, 3, 12, 3),
    Sketcher.Constraint("Vertical", 12, 3, 13, 3),
    Sketcher.Constraint("Vertical", 13, 3, 14, 3),
    Sketcher.Constraint("Vertical", 14, 3, 15, 3),
    Sketcher.Constraint("Vertical", 15, 3, 16, 3),
    Sketcher.Constraint("Vertical", 16, 3, 17, 3),
    Sketcher.Constraint("Vertical", 17, 3, 18, 3),
    Sketcher.Constraint("Vertical", 18, 3, 19, 3),
    Sketcher.Constraint("Vertical", 19, 3, 20, 3),
    Sketcher.Constraint("Vertical", 20, 3, 21, 3),
    Sketcher.Constraint("Vertical", 21, 3, 22, 3),
    Sketcher.Constraint("Vertical", 22, 3, 23, 3),
    Sketcher.Constraint("Vertical", 23, 3, 24, 3),
    Sketcher.Constraint("Vertical", 24, 3, 25, 3),
    Sketcher.Constraint("Vertical", 25, 3, 26, 3),
    Sketcher.Constraint("Vertical", 26, 3, 27, 3),
    Sketcher.Constraint("Vertical", 27, 3, 28, 3),
    Sketcher.Constraint("Vertical", 28, 3, 29, 3),
    Sketcher.Constraint("Vertical", 29, 3, 30, 3),
    Sketcher.Constraint("Vertical", 30, 3, 31, 3),
    Sketcher.Constraint("Vertical", 31, 3, 32, 3),
    Sketcher.Constraint("Vertical", 32, 3, 33, 3),
    Sketcher.Constraint("Diameter", 0, Q("3.4 mm")),
    Sketcher.Constraint("DistanceX", 0, 3, -1, 1, Q("0.09375 in")),
    Sketcher.Constraint("DistanceY", -1, 1, 0, 3, Q("78.35 mm")),
    Sketcher.Constraint("DistanceY", -1, 1, 1, 3, Q("92.85 mm")),
    Sketcher.Constraint("DistanceY", -1, 1, 2, 3, Q("107.35 mm")),
    Sketcher.Constraint("DistanceY", -1, 1, 3, 3, Q("121.85 mm")),
    Sketcher.Constraint("DistanceY", -1, 1, 4, 3, Q("136.35 mm")),
    Sketcher.Constraint("DistanceY", -1, 1, 5, 3, Q("150.85 mm")),
    Sketcher.Constraint("DistanceY", -1, 1, 6, 3, Q("165.35 mm")),
    Sketcher.Constraint("DistanceY", -1, 1, 7, 3, Q("179.85 mm")),
    Sketcher.Constraint("DistanceY", -1, 1, 8, 3, Q("194.35 mm")),
    Sketcher.Constraint("DistanceY", -1, 1, 9, 3, Q("208.85 mm")),
    Sketcher.Constraint("DistanceY", -1, 1, 10, 3, Q("223.35 mm")),
    Sketcher.Constraint("DistanceY", -1, 1, 11, 3, Q("237.85 mm")),
    Sketcher.Constraint("DistanceY", -1, 1, 12, 3, Q("252.35 mm")),
    Sketcher.Constraint("DistanceY", -1, 1, 13, 3, Q("266.85 mm")),
    Sketcher.Constraint("DistanceY", -1, 1, 14, 3, Q("281.35 mm")),
    Sketcher.Constraint("DistanceY", -1, 1, 15, 3, Q("295.85 mm")),
    Sketcher.Constraint("DistanceY", -1, 1, 16, 3, Q("310.35 mm")),
    Sketcher.Constraint("DistanceY", -1, 1, 17, 3, Q("324.85 mm")),
    Sketcher.Constraint("DistanceY", -1, 1, 18, 3, Q("339.35 mm")),
    Sketcher.Constraint("DistanceY", -1, 1, 19, 3, Q("353.85 mm")),
    Sketcher.Constraint("DistanceY", -1, 1, 20, 3, Q("368.35 mm")),
    Sketcher.Constraint("DistanceY", -1, 1, 21, 3, Q("382.85 mm")),
    Sketcher.Constraint("DistanceY", -1, 1, 22, 3, Q("397.35 mm")),
    Sketcher.Constraint("DistanceY", -1, 1, 23, 3, Q("411.85 mm")),
    Sketcher.Constraint("DistanceY", -1, 1, 24, 3, Q("426.35 mm")),
    Sketcher.Constraint("DistanceY", -1, 1, 25, 3, Q("440.85 mm")),
    Sketcher.Constraint("DistanceY", -1, 1, 26, 3, Q("455.35 mm")),
    Sketcher.Constraint("DistanceY", -1, 1, 27, 3, Q("469.85 mm")),
    Sketcher.Constraint("DistanceY", -1, 1, 28, 3, Q("484.35 mm")),
    Sketcher.Constraint("DistanceY", -1, 1, 29, 3, Q("498.85 mm")),
    Sketcher.Constraint("DistanceY", -1, 1, 30, 3, Q("513.35 mm")),
    Sketcher.Constraint("DistanceY", -1, 1, 31, 3, Q("527.85 mm")),
    Sketcher.Constraint("DistanceY", -1, 1, 32, 3, Q("542.35 mm")),
    Sketcher.Constraint("DistanceY", -1, 1, 33, 3, Q("556.85 mm")),
])
pocket3 = body.newObject("PartDesign::Pocket", "Pocket002")
pocket3.Profile = sketch4
pocket3.Type = "ThroughAll"
pocket3.Reversed = True

doc.recompute()
